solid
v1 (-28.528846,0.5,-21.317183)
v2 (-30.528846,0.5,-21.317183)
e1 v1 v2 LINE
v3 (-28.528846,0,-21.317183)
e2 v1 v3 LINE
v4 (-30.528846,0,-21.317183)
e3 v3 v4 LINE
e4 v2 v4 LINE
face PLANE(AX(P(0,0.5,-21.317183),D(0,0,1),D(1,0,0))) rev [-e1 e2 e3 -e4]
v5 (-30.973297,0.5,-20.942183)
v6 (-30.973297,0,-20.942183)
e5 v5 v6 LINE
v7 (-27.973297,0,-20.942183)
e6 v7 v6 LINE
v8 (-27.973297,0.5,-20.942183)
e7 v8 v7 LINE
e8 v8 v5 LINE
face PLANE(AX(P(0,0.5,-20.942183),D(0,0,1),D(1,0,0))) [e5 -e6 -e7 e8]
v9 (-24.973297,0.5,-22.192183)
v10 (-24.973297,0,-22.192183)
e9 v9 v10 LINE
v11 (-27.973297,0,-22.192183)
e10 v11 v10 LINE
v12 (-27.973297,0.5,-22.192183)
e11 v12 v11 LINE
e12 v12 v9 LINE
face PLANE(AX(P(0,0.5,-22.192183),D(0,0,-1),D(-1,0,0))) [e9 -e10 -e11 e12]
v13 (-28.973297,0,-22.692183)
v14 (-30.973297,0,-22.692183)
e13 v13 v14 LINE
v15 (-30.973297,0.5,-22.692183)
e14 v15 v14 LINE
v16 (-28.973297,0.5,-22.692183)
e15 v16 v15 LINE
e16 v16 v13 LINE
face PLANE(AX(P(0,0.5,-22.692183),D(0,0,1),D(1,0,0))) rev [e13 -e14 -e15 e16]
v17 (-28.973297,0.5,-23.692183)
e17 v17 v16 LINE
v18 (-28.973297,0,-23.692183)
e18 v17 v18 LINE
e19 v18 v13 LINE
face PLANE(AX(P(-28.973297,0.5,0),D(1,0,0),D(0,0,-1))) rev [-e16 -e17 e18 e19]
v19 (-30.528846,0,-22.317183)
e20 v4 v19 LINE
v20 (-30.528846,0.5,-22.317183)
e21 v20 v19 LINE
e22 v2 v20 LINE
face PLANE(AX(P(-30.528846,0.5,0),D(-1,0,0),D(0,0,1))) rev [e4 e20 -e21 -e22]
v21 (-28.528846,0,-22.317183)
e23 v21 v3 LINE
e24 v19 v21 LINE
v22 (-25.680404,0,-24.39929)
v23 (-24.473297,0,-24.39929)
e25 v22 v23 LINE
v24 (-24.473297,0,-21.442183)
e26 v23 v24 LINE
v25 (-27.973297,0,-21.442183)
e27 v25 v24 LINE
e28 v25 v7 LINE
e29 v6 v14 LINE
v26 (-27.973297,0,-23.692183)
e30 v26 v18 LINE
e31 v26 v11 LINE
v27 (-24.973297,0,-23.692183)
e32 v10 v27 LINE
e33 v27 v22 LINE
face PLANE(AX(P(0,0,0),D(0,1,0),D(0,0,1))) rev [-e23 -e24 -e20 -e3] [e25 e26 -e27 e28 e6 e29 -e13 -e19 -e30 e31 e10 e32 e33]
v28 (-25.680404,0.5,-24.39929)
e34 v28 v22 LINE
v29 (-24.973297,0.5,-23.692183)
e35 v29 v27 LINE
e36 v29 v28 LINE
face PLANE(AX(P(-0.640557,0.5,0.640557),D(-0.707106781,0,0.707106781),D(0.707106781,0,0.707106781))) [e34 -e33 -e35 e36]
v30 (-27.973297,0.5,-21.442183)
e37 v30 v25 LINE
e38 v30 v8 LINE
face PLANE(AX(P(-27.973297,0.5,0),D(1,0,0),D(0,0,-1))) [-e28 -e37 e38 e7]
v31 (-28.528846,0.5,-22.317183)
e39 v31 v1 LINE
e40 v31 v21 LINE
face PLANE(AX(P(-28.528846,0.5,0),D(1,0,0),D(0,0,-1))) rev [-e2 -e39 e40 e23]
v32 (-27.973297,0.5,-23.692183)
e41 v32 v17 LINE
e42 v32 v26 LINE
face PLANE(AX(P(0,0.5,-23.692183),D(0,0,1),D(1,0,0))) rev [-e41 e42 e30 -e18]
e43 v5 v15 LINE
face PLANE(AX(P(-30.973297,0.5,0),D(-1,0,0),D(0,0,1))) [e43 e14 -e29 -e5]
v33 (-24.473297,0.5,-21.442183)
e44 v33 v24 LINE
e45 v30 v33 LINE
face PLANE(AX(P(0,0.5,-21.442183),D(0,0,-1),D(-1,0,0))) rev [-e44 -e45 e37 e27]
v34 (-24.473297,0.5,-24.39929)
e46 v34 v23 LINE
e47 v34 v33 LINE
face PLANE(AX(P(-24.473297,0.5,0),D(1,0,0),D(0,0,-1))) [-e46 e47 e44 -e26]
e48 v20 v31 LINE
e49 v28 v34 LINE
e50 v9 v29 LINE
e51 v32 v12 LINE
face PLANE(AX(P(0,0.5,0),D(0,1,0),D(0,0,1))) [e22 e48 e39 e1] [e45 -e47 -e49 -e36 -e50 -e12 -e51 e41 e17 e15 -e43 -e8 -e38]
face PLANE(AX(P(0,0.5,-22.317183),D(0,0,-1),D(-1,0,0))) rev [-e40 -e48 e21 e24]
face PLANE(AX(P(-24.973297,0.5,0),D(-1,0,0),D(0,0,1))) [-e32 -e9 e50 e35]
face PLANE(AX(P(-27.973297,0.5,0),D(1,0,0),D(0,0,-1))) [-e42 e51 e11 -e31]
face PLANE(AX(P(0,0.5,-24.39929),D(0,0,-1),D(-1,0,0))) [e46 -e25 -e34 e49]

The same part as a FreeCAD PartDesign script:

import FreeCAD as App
import Part
import Sketcher

V = App.Vector
Q = App.Units.Quantity

doc = App.newDocument("Part")
body = doc.addObject("PartDesign::Body", "Body")

sketch1 = body.newObject("Sketcher::SketchObject", "Sketch")
sketch1.AttachmentSupport = (doc.getObject("XZ_Plane"), [""])
sketch1.MapMode = "FlatFace"
sketch1.addGeometry(Part.LineSegment(V(-25, -22.2, 0), V(-28, -22.2, 0)), False)
sketch1.addGeometry(Part.LineSegment(V(-28, -22.2, 0), V(-28, -23.7, 0)), False)
sketch1.addGeometry(Part.LineSegment(V(-28, -23.7, 0), V(-29, -23.7, 0)), False)
sketch1.addGeometry(Part.LineSegment(V(-29, -23.7, 0), V(-29, -22.7, 0)), False)
sketch1.addGeometry(Part.LineSegment(V(-29, -22.7, 0), V(-31, -22.7, 0)), False)
sketch1.addGeometry(Part.LineSegment(V(-31, -22.7, 0), V(-31, -20.9, 0)), False)
sketch1.addGeometry(Part.LineSegment(V(-31, -20.9, 0), V(-28, -20.9, 0)), False)
sketch1.addGeometry(Part.LineSegment(V(-28, -20.9, 0), V(-28, -21.4, 0)), False)
sketch1.addGeometry(Part.LineSegment(V(-28, -21.4, 0), V(-24.5, -21.4, 0)), False)
sketch1.addGeometry(Part.LineSegment(V(-24.5, -21.4, 0), V(-24.5, -24.4, 0)), False)
sketch1.addGeometry(Part.LineSegment(V(-24.5, -24.4, 0), V(-25.7, -24.4, 0)), False)
sketch1.addGeometry(Part.LineSegment(V(-25.7, -24.4, 0), V(-25, -23.7, 0)), False)
sketch1.addGeometry(Part.LineSegment(V(-25, -23.7, 0), V(-25, -22.2, 0)), False)
sketch1.addGeometry(Part.LineSegment(V(-28.5, -21.3, 0), V(-30.5, -21.3, 0)), False)
sketch1.addGeometry(Part.LineSegment(V(-30.5, -21.3, 0), V(-30.5, -22.3, 0)), False)
sketch1.addGeometry(Part.LineSegment(V(-30.5, -22.3, 0), V(-28.5, -22.3, 0)), False)
sketch1.addGeometry(Part.LineSegment(V(-28.5, -22.3, 0), V(-28.5, -21.3, 0)), False)
sketch1.addConstraint(Sketcher.Constraint("Coincident", 0, 2, 1, 1))
sketch1.addConstraint(Sketcher.Constraint("Coincident", 1, 2, 2, 1))
sketch1.addConstraint(Sketcher.Constraint("Coincident", 2, 2, 3, 1))
sketch1.addConstraint(Sketcher.Constraint("Coincident", 3, 2, 4, 1))
sketch1.addConstraint(Sketcher.Constraint("Coincident", 4, 2, 5, 1))
sketch1.addConstraint(Sketcher.Constraint("Coincident", 5, 2, 6, 1))
sketch1.addConstraint(Sketcher.Constraint("Coincident", 6, 2, 7, 1))
sketch1.addConstraint(Sketcher.Constraint("Coincident", 7, 2, 8, 1))
sketch1.addConstraint(Sketcher.Constraint("Coincident", 8, 2, 9, 1))
sketch1.addConstraint(Sketcher.Constraint("Coincident", 9, 2, 10, 1))
sketch1.addConstraint(Sketcher.Constraint("Coincident", 10, 2, 11, 1))
sketch1.addConstraint(Sketcher.Constraint("Coincident", 11, 2, 12, 1))
sketch1.addConstraint(Sketcher.Constraint("Coincident", 12, 2, 0, 1))
sketch1.addConstraint(Sketcher.Constraint("Coincident", 13, 2, 14, 1))
sketch1.addConstraint(Sketcher.Constraint("Coincident", 14, 2, 15, 1))
sketch1.addConstraint(Sketcher.Constraint("Coincident", 15, 2, 16, 1))
sketch1.addConstraint(Sketcher.Constraint("Coincident", 16, 2, 13, 1))
sketch1.addConstraint(Sketcher.Constraint("Horizontal", 0))
sketch1.addConstraint(Sketcher.Constraint("Vertical", 1))
sketch1.addConstraint(Sketcher.Constraint("Horizontal", 2))
sketch1.addConstraint(Sketcher.Constraint("Vertical", 3))
sketch1.addConstraint(Sketcher.Constraint("Horizontal", 4))
sketch1.addConstraint(Sketcher.Constraint("Vertical", 5))
sketch1.addConstraint(Sketcher.Constraint("Horizontal", 6))
sketch1.addConstraint(Sketcher.Constraint("Vertical", 7))
sketch1.addConstraint(Sketcher.Constraint("Horizontal", 8))
sketch1.addConstraint(Sketcher.Constraint("Vertical", 9))
sketch1.addConstraint(Sketcher.Constraint("Horizontal", 10))
sketch1.addConstraint(Sketcher.Constraint("Vertical", 12))
sketch1.addConstraint(Sketcher.Constraint("Horizontal", 13))
sketch1.addConstraint(Sketcher.Constraint("Vertical", 14))
sketch1.addConstraint(Sketcher.Constraint("Horizontal", 15))
sketch1.addConstraint(Sketcher.Constraint("Vertical", 16))
sketch1.addConstraint(Sketcher.Constraint("Horizontal", 2, 2, 11, 2))
sketch1.addConstraint(Sketcher.Constraint("Vertical", 1, 2, 6, 2))
sketch1.addConstraint(Sketcher.Constraint("Equal", 0, 6))
sketch1.addConstraint(Sketcher.Constraint("Equal", 4, 13))
sketch1.addConstraint(Sketcher.Constraint("Equal", 2, 3))
sketch1.addConstraint(Sketcher.Constraint("Equal", 3, 14))
sketch1.addConstraint(Sketcher.Constraint("DistanceX", 0, 2, 0, 1, Q("3 mm")))
sketch1.addConstraint(Sketcher.Constraint("DistanceX", 2, 2, 2, 1, Q("1 mm")))
sketch1.addConstraint(Sketcher.Constraint("Angle", 11, Q("45 deg")))
sketch1.addConstraint(Sketcher.Constraint("Distance", 11, Q("1 mm")))
sketch1.addConstraint(Sketcher.Constraint("DistanceX", 8, 1, 8, 2, Q("3.5 mm")))
sketch1.addConstraint(Sketcher.Constraint("DistanceY", 1, 2, 1, 1, Q("1.5 mm")))
sketch1.addConstraint(Sketcher.Constraint("DistanceY", 7, 2, 7, 1, Q("0.5 mm")))
sketch1.addConstraint(Sketcher.Constraint("DistanceY", 5, 1, 5, 2, Q("1.75 mm")))
sketch1.addConstraint(Sketcher.Constraint("DistanceY", 13, 2, 5, 2, Q("0.375 mm")))
sketch1.addConstraint(Sketcher.Constraint("DistanceY", 9, 2, -1, 1, Q("24.39929 mm")))
sketch1.addConstraint(Sketcher.Constraint("DistanceX", 5, 2, 13, 2, Q("0.444451 mm")))
sketch1.addConstraint(Sketcher.Constraint("DistanceX", 0, 2, -1, 1, Q("27.973297 mm")))
pad1 = body.newObject("PartDesign::Pad", "Pad")
pad1.Profile = sketch1
pad1.Length = 0.5
pad1.Reversed = True

doc.recompute()
